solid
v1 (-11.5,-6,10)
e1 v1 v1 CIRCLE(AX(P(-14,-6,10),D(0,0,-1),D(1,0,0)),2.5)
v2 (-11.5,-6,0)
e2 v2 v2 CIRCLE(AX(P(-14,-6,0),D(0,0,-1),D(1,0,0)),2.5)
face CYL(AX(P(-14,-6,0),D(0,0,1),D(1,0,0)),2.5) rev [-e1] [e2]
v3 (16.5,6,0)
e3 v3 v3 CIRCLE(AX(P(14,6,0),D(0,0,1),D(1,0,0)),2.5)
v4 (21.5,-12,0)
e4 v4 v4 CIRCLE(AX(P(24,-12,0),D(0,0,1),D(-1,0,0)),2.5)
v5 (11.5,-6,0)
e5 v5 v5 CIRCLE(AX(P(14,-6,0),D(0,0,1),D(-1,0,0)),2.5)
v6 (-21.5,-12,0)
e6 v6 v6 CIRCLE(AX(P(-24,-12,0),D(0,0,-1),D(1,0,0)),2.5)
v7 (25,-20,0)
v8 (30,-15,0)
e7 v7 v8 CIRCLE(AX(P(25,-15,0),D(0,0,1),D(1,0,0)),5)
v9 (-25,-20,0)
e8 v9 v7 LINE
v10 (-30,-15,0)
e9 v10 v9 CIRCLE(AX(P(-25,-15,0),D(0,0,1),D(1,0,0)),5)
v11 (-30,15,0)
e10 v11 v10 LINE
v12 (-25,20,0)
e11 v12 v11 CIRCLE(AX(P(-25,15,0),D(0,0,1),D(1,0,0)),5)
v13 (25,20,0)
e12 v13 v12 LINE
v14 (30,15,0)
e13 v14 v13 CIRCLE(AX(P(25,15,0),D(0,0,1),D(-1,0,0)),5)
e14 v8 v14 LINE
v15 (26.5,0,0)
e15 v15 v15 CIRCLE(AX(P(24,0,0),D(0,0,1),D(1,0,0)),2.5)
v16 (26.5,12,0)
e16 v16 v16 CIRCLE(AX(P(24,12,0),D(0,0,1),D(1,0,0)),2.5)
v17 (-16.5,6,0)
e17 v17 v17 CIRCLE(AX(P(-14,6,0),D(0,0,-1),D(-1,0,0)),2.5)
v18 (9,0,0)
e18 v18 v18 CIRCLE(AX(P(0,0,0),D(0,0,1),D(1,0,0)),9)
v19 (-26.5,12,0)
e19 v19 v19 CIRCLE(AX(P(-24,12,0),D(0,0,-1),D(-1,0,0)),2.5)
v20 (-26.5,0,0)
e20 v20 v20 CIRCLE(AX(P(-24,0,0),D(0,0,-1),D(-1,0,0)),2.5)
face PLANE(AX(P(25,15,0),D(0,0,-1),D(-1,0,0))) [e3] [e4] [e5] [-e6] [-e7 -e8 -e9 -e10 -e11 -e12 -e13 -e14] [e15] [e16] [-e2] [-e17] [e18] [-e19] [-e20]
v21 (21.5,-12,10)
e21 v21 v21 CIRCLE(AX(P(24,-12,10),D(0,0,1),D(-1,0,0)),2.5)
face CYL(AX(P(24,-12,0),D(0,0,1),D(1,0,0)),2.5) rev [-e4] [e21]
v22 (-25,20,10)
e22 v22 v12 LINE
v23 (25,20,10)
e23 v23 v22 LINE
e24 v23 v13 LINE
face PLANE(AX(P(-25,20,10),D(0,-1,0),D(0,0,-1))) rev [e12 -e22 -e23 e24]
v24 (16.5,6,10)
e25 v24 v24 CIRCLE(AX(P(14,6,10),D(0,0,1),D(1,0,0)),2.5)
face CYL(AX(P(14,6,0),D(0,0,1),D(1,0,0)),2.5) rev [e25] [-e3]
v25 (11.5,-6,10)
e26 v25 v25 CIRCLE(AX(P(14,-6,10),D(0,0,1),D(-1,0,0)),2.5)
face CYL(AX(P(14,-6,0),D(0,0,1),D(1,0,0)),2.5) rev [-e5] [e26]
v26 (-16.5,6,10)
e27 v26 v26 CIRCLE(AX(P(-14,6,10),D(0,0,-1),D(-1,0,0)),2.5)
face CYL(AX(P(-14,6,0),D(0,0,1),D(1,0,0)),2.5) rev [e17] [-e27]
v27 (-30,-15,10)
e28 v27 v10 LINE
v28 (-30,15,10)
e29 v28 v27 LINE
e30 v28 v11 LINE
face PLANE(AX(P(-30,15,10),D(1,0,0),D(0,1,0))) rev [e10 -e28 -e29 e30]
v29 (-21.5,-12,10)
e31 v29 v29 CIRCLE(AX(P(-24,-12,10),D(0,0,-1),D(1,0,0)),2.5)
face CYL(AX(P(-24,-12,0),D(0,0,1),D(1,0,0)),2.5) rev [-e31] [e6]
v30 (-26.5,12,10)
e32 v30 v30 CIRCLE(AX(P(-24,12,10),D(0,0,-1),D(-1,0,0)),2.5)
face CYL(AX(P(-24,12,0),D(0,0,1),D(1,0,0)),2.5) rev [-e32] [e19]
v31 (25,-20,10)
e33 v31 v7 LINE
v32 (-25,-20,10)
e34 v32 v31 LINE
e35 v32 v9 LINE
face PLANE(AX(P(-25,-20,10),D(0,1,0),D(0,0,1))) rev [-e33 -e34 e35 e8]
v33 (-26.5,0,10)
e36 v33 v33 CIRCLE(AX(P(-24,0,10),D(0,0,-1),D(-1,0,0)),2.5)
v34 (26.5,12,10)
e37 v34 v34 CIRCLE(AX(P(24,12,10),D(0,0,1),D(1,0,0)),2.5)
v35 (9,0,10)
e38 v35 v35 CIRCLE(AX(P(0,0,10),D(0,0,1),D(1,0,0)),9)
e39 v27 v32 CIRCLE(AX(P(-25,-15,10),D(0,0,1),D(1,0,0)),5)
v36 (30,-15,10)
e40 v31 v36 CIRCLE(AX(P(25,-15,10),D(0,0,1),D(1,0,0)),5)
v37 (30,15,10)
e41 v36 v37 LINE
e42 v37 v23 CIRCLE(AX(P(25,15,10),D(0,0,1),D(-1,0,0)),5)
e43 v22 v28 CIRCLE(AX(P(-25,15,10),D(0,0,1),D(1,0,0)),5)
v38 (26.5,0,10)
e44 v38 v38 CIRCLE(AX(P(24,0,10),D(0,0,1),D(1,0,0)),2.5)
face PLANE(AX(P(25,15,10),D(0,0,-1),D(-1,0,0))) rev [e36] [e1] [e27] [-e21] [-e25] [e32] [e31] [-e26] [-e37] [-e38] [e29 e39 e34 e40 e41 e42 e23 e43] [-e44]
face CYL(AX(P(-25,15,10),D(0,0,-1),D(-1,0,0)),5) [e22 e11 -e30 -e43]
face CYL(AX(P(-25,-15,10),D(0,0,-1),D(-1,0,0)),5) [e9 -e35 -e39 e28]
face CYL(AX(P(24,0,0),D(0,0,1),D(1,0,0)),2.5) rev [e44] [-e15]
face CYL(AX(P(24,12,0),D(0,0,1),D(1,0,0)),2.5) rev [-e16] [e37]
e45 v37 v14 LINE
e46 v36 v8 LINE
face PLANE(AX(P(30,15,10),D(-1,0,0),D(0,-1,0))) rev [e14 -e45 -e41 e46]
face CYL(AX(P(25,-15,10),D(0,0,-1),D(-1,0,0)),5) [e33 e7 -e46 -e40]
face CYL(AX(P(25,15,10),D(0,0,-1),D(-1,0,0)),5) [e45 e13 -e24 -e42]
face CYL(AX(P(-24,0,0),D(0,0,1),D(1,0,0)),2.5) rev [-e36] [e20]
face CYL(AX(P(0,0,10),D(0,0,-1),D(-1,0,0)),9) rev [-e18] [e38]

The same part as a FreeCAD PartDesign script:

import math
import FreeCAD as App
import Part
import Sketcher

doc = App.newDocument("Part")
body = doc.addObject("PartDesign::Body", "Body")

# Sketch on XY plane
sketch1 = doc.addObject("Sketcher::SketchObject", "Sketch")
body.addObject(sketch1)
sketch1.AttachmentSupport = (doc.XY_Plane, [""])
sketch1.MapMode = "FlatFace"
sketch1.addGeometry([
    Part.LineSegment(App.Vector(25, 20, 0), App.Vector(-25, 20, 0)),  # 0
    Part.ArcOfCircle(Part.Circle(App.Vector(-25, 15, 0), App.Vector(0, 0, 1), 5), math.radians(90), math.radians(180)),  # 1
    Part.LineSegment(App.Vector(-30, 15, 0), App.Vector(-30, -15, 0)),  # 2
    Part.ArcOfCircle(Part.Circle(App.Vector(-25, -15, 0), App.Vector(0, 0, 1), 5), math.radians(180), math.radians(270)),  # 3
    Part.LineSegment(App.Vector(-25, -20, 0), App.Vector(25, -20, 0)),  # 4
    Part.ArcOfCircle(Part.Circle(App.Vector(25, -15, 0), App.Vector(0, 0, 1), 5), math.radians(-90), math.radians(0)),  # 5
    Part.LineSegment(App.Vector(30, -15, 0), App.Vector(30, 15, 0)),  # 6
    Part.ArcOfCircle(Part.Circle(App.Vector(25, 15, 0), App.Vector(0, 0, 1), 5), math.radians(0), math.radians(90)),  # 7
    Part.Circle(App.Vector(0, 0, 0), App.Vector(0, 0, 1), 9),  # 8
], False)
sketch1.addConstraint([
    Sketcher.Constraint("Tangent", 0, 2, 1, 1),
    Sketcher.Constraint("Tangent", 1, 2, 2, 1),
    Sketcher.Constraint("Tangent", 2, 2, 3, 1),
    Sketcher.Constraint("Tangent", 3, 2, 4, 1),
    Sketcher.Constraint("Tangent", 4, 2, 5, 1),
    Sketcher.Constraint("Tangent", 5, 2, 6, 1),
    Sketcher.Constraint("Tangent", 6, 2, 7, 1),
    Sketcher.Constraint("Tangent", 7, 2, 0, 1),
    Sketcher.Constraint("Horizontal", 0),
    Sketcher.Constraint("Vertical", 2),
    Sketcher.Constraint("Horizontal", 4),
    Sketcher.Constraint("Vertical", 6),
    Sketcher.Constraint("Coincident", 8, 3, -1, 1),
    Sketcher.Constraint("Equal", 1, 3),
    Sketcher.Constraint("Equal", 3, 5),
    Sketcher.Constraint("Equal", 5, 7),
    Sketcher.Constraint("Symmetric", 1, 3, 5, 3, -1, 1),
    Sketcher.Constraint("Diameter", 8, 18.0),
    Sketcher.Constraint("Radius", 1, 5.0),
    Sketcher.Constraint("DistanceX", 0, 2, 0, 1, 50.0),
    Sketcher.Constraint("DistanceY", 2, 2, 2, 1, 30.0),
])
pad1 = doc.addObject("PartDesign::Pad", "Pad")
body.addObject(pad1)
pad1.Profile = sketch1
pad1.Length = 10

# Sketch on XY plane
sketch2 = doc.addObject("Sketcher::SketchObject", "Sketch001")
body.addObject(sketch2)
sketch2.AttachmentSupport = (doc.XY_Plane, [""])
sketch2.MapMode = "FlatFace"
sketch2.AttachmentOffset = App.Placement(App.Vector(0, 0, 10), App.Rotation())
sketch2.addGeometry([
    Part.Circle(App.Vector(14, 6, 0), App.Vector(0, 0, 1), 2.5),  # 0
    Part.Circle(App.Vector(24, 0, 0), App.Vector(0, 0, 1), 2.5),  # 1
    Part.Circle(App.Vector(24, 12, 0), App.Vector(0, 0, 1), 2.5),  # 2
    Part.Circle(App.Vector(24, -12, 0), App.Vector(0, 0, 1), 2.5),  # 3
    Part.Circle(App.Vector(14, -6, 0), App.Vector(0, 0, 1), 2.5),  # 4
], False)
sketch2.addConstraint([
    Sketcher.Constraint("Equal", 0, 1),
    Sketcher.Constraint("Equal", 1, 2),
    Sketcher.Constraint("Equal", 2, 3),
    Sketcher.Constraint("Equal", 3, 4),
    Sketcher.Constraint("Symmetric", 2, 3, 3, 3, -1),
    Sketcher.Constraint("Symmetric", 0, 3, 4, 3, -1),
    Sketcher.Constraint("PointOnObject", 1, 3, -1),
    Sketcher.Constraint("Vertical", 1, 3, 2, 3),
    Sketcher.Constraint("Diameter", 0, 5.0),
    Sketcher.Constraint("DistanceX", -1, 1, 0, 3, 14.0),
    Sketcher.Constraint("DistanceY", -1, 1, 0, 3, 6.0),
    Sketcher.Constraint("DistanceX", -1, 1, 1, 3, 24.0),
    Sketcher.Constraint("DistanceY", -1, 1, 2, 3, 12.0),
])
pocket1 = doc.addObject("PartDesign::Pocket", "Pocket")
body.addObject(pocket1)
pocket1.Profile = sketch2
pocket1.Type = "ThroughAll"
doc.recompute()

mirrored = doc.addObject("PartDesign::Mirrored", "Mirrored")
body.addObject(mirrored)
mirrored.Originals = [pocket1]
mirrored.MirrorPlane = (doc.YZ_Plane, [""])
body.Tip = mirrored

doc.recompute()
